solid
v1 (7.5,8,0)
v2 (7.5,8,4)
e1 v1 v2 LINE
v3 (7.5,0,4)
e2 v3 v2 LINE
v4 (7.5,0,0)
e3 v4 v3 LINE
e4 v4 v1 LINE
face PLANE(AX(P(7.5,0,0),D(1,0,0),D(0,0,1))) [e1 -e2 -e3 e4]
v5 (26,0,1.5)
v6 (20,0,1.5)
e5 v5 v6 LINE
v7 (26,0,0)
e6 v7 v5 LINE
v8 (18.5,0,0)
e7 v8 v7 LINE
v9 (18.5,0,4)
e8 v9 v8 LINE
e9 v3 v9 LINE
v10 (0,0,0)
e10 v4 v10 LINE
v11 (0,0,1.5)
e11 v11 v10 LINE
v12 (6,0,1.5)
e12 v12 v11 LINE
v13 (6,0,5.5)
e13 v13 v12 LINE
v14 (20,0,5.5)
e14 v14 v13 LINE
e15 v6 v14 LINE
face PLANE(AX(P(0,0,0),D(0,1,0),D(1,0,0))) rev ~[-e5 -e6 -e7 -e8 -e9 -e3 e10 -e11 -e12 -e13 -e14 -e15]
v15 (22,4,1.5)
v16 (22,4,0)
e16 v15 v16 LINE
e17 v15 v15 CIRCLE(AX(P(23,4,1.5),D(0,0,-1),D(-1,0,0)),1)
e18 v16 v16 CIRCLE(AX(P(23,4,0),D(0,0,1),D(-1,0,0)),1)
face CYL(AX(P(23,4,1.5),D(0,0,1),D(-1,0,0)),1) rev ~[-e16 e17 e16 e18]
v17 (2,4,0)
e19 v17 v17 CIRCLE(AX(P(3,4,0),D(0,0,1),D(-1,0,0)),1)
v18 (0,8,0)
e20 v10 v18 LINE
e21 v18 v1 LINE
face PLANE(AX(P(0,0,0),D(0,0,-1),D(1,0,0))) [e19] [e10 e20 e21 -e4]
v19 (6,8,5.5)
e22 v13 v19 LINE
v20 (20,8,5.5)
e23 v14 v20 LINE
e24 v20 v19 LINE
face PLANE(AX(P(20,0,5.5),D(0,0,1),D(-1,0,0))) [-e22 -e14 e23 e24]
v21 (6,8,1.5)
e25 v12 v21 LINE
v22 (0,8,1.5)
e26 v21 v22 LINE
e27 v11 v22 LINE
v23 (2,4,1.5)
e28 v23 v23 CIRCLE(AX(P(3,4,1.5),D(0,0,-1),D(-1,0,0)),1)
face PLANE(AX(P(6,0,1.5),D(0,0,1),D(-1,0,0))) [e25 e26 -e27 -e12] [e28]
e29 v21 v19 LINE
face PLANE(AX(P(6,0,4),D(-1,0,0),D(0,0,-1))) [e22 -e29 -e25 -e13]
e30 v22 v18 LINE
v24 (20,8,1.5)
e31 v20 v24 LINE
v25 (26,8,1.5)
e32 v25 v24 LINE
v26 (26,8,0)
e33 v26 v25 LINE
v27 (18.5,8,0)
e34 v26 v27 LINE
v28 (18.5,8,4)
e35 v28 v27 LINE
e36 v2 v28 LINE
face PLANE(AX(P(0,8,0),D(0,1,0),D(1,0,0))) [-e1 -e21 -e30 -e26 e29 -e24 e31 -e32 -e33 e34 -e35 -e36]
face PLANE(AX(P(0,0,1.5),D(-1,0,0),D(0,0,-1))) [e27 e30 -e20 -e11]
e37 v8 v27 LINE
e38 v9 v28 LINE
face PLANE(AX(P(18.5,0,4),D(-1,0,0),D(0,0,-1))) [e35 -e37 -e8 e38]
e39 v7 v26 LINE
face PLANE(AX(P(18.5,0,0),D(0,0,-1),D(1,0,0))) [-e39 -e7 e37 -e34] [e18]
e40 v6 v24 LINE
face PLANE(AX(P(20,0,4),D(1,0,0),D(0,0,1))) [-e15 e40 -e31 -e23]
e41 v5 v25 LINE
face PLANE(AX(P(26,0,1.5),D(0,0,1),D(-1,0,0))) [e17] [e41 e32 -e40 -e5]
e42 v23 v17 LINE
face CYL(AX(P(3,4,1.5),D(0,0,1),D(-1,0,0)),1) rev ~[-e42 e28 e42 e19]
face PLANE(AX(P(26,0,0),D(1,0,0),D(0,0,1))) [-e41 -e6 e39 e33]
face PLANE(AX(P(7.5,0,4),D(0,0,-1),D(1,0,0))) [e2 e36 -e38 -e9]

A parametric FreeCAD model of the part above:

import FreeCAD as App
import Part
import Sketcher
from FreeCAD import Vector
Q = App.Units.Quantity

doc = App.newDocument("Part")
body = doc.addObject("PartDesign::Body", "Body")

# Sketch on XZ plane
sketch1 = body.newObject("Sketcher::SketchObject", "Sketch")
sketch1.AttachmentSupport = (doc.getObject("XZ_Plane"), [""])
sketch1.MapMode = "FlatFace"
sketch1.addGeometry([
    Part.LineSegment(Vector(0, 0, 0), Vector(0, 1.5, 0)),  # 0
    Part.LineSegment(Vector(0, 1.5, 0), Vector(6, 1.5, 0)),  # 1
    Part.LineSegment(Vector(6, 1.5, 0), Vector(6, 5.5, 0)),  # 2
    Part.LineSegment(Vector(6, 5.5, 0), Vector(20, 5.5, 0)),  # 3
    Part.LineSegment(Vector(20, 5.5, 0), Vector(20, 1.5, 0)),  # 4
    Part.LineSegment(Vector(20, 1.5, 0), Vector(26, 1.5, 0)),  # 5
    Part.LineSegment(Vector(26, 1.5, 0), Vector(26, 0, 0)),  # 6
    Part.LineSegment(Vector(26, 0, 0), Vector(18.5, 0, 0)),  # 7
    Part.LineSegment(Vector(18.5, 0, 0), Vector(18.5, 4, 0)),  # 8
    Part.LineSegment(Vector(18.5, 4, 0), Vector(7.5, 4, 0)),  # 9
    Part.LineSegment(Vector(7.5, 4, 0), Vector(7.5, 0, 0)),  # 10
    Part.LineSegment(Vector(7.5, 0, 0), Vector(0, 0, 0)),  # 11
], False)
sketch1.addConstraint([
    Sketcher.Constraint("Coincident", 0, 2, 1, 1),
    Sketcher.Constraint("Coincident", 1, 2, 2, 1),
    Sketcher.Constraint("Coincident", 2, 2, 3, 1),
    Sketcher.Constraint("Coincident", 3, 2, 4, 1),
    Sketcher.Constraint("Coincident", 4, 2, 5, 1),
    Sketcher.Constraint("Coincident", 5, 2, 6, 1),
    Sketcher.Constraint("Coincident", 6, 2, 7, 1),
    Sketcher.Constraint("Coincident", 7, 2, 8, 1),
    Sketcher.Constraint("Coincident", 8, 2, 9, 1),
    Sketcher.Constraint("Coincident", 9, 2, 10, 1),
    Sketcher.Constraint("Coincident", 10, 2, 11, 1),
    Sketcher.Constraint("Coincident", 11, 2, 0, 1),
    Sketcher.Constraint("Vertical", 0),
    Sketcher.Constraint("Horizontal", 1),
    Sketcher.Constraint("Vertical", 2),
    Sketcher.Constraint("Horizontal", 3),
    Sketcher.Constraint("Vertical", 4),
    Sketcher.Constraint("Horizontal", 5),
    Sketcher.Constraint("Vertical", 6),
    Sketcher.Constraint("Horizontal", 7),
    Sketcher.Constraint("Vertical", 8),
    Sketcher.Constraint("Horizontal", 9),
    Sketcher.Constraint("Vertical", 10),
    Sketcher.Constraint("Horizontal", 11),
    Sketcher.Constraint("Coincident", 11, 2, -1, 1),
    Sketcher.Constraint("PointOnObject", 6, 2, -1),
    Sketcher.Constraint("Horizontal", 1, 2, 4, 2),
    Sketcher.Constraint("Equal", 1, 5),
    Sketcher.Constraint("Equal", 7, 11),
    Sketcher.Constraint("Equal", 4, 8),
    Sketcher.Constraint("DistanceX", 1, 1, 1, 2, Q("6 mm")),
    Sketcher.Constraint("DistanceX", 3, 1, 3, 2, Q("14 mm")),
    Sketcher.Constraint("DistanceY", 2, 1, 2, 2, Q("4 mm")),
    Sketcher.Constraint("DistanceY", 0, 1, 0, 2, Q("1.5 mm")),
    Sketcher.Constraint("DistanceX", 7, 2, 4, 2, Q("1.5 mm")),
])
pad1 = body.newObject("PartDesign::Pad", "Pad")
pad1.Profile = sketch1
pad1.Length = 8
pad1.Reversed = True

# Sketch on XY plane
sketch2 = body.newObject("Sketcher::SketchObject", "Sketch001")
sketch2.AttachmentSupport = (doc.getObject("XY_Plane"), [""])
sketch2.MapMode = "FlatFace"
sketch2.AttachmentOffset = App.Placement(Vector(0, 0, 1.5), App.Rotation())
sketch2.addGeometry([
    Part.Circle(Vector(3, 4, 0), Vector(0, 0, 1), 1),
    Part.Circle(Vector(23, 4, 0), Vector(0, 0, 1), 1),
], False)
sketch2.addConstraint([
    Sketcher.Constraint("Equal", 0, 1),
    Sketcher.Constraint("Horizontal", 0, 3, 1, 3),
    Sketcher.Constraint("Diameter", 0, Q("2 mm")),
    Sketcher.Constraint("DistanceX", -1, 1, 0, 3, Q("3 mm")),
    Sketcher.Constraint("DistanceY", -1, 1, 0, 3, Q("4 mm")),
    Sketcher.Constraint("DistanceX", -1, 1, 1, 3, Q("23 mm")),
])
pocket1 = body.newObject("PartDesign::Pocket", "Pocket")
pocket1.Profile = sketch2
pocket1.Length = 2

doc.recompute()
